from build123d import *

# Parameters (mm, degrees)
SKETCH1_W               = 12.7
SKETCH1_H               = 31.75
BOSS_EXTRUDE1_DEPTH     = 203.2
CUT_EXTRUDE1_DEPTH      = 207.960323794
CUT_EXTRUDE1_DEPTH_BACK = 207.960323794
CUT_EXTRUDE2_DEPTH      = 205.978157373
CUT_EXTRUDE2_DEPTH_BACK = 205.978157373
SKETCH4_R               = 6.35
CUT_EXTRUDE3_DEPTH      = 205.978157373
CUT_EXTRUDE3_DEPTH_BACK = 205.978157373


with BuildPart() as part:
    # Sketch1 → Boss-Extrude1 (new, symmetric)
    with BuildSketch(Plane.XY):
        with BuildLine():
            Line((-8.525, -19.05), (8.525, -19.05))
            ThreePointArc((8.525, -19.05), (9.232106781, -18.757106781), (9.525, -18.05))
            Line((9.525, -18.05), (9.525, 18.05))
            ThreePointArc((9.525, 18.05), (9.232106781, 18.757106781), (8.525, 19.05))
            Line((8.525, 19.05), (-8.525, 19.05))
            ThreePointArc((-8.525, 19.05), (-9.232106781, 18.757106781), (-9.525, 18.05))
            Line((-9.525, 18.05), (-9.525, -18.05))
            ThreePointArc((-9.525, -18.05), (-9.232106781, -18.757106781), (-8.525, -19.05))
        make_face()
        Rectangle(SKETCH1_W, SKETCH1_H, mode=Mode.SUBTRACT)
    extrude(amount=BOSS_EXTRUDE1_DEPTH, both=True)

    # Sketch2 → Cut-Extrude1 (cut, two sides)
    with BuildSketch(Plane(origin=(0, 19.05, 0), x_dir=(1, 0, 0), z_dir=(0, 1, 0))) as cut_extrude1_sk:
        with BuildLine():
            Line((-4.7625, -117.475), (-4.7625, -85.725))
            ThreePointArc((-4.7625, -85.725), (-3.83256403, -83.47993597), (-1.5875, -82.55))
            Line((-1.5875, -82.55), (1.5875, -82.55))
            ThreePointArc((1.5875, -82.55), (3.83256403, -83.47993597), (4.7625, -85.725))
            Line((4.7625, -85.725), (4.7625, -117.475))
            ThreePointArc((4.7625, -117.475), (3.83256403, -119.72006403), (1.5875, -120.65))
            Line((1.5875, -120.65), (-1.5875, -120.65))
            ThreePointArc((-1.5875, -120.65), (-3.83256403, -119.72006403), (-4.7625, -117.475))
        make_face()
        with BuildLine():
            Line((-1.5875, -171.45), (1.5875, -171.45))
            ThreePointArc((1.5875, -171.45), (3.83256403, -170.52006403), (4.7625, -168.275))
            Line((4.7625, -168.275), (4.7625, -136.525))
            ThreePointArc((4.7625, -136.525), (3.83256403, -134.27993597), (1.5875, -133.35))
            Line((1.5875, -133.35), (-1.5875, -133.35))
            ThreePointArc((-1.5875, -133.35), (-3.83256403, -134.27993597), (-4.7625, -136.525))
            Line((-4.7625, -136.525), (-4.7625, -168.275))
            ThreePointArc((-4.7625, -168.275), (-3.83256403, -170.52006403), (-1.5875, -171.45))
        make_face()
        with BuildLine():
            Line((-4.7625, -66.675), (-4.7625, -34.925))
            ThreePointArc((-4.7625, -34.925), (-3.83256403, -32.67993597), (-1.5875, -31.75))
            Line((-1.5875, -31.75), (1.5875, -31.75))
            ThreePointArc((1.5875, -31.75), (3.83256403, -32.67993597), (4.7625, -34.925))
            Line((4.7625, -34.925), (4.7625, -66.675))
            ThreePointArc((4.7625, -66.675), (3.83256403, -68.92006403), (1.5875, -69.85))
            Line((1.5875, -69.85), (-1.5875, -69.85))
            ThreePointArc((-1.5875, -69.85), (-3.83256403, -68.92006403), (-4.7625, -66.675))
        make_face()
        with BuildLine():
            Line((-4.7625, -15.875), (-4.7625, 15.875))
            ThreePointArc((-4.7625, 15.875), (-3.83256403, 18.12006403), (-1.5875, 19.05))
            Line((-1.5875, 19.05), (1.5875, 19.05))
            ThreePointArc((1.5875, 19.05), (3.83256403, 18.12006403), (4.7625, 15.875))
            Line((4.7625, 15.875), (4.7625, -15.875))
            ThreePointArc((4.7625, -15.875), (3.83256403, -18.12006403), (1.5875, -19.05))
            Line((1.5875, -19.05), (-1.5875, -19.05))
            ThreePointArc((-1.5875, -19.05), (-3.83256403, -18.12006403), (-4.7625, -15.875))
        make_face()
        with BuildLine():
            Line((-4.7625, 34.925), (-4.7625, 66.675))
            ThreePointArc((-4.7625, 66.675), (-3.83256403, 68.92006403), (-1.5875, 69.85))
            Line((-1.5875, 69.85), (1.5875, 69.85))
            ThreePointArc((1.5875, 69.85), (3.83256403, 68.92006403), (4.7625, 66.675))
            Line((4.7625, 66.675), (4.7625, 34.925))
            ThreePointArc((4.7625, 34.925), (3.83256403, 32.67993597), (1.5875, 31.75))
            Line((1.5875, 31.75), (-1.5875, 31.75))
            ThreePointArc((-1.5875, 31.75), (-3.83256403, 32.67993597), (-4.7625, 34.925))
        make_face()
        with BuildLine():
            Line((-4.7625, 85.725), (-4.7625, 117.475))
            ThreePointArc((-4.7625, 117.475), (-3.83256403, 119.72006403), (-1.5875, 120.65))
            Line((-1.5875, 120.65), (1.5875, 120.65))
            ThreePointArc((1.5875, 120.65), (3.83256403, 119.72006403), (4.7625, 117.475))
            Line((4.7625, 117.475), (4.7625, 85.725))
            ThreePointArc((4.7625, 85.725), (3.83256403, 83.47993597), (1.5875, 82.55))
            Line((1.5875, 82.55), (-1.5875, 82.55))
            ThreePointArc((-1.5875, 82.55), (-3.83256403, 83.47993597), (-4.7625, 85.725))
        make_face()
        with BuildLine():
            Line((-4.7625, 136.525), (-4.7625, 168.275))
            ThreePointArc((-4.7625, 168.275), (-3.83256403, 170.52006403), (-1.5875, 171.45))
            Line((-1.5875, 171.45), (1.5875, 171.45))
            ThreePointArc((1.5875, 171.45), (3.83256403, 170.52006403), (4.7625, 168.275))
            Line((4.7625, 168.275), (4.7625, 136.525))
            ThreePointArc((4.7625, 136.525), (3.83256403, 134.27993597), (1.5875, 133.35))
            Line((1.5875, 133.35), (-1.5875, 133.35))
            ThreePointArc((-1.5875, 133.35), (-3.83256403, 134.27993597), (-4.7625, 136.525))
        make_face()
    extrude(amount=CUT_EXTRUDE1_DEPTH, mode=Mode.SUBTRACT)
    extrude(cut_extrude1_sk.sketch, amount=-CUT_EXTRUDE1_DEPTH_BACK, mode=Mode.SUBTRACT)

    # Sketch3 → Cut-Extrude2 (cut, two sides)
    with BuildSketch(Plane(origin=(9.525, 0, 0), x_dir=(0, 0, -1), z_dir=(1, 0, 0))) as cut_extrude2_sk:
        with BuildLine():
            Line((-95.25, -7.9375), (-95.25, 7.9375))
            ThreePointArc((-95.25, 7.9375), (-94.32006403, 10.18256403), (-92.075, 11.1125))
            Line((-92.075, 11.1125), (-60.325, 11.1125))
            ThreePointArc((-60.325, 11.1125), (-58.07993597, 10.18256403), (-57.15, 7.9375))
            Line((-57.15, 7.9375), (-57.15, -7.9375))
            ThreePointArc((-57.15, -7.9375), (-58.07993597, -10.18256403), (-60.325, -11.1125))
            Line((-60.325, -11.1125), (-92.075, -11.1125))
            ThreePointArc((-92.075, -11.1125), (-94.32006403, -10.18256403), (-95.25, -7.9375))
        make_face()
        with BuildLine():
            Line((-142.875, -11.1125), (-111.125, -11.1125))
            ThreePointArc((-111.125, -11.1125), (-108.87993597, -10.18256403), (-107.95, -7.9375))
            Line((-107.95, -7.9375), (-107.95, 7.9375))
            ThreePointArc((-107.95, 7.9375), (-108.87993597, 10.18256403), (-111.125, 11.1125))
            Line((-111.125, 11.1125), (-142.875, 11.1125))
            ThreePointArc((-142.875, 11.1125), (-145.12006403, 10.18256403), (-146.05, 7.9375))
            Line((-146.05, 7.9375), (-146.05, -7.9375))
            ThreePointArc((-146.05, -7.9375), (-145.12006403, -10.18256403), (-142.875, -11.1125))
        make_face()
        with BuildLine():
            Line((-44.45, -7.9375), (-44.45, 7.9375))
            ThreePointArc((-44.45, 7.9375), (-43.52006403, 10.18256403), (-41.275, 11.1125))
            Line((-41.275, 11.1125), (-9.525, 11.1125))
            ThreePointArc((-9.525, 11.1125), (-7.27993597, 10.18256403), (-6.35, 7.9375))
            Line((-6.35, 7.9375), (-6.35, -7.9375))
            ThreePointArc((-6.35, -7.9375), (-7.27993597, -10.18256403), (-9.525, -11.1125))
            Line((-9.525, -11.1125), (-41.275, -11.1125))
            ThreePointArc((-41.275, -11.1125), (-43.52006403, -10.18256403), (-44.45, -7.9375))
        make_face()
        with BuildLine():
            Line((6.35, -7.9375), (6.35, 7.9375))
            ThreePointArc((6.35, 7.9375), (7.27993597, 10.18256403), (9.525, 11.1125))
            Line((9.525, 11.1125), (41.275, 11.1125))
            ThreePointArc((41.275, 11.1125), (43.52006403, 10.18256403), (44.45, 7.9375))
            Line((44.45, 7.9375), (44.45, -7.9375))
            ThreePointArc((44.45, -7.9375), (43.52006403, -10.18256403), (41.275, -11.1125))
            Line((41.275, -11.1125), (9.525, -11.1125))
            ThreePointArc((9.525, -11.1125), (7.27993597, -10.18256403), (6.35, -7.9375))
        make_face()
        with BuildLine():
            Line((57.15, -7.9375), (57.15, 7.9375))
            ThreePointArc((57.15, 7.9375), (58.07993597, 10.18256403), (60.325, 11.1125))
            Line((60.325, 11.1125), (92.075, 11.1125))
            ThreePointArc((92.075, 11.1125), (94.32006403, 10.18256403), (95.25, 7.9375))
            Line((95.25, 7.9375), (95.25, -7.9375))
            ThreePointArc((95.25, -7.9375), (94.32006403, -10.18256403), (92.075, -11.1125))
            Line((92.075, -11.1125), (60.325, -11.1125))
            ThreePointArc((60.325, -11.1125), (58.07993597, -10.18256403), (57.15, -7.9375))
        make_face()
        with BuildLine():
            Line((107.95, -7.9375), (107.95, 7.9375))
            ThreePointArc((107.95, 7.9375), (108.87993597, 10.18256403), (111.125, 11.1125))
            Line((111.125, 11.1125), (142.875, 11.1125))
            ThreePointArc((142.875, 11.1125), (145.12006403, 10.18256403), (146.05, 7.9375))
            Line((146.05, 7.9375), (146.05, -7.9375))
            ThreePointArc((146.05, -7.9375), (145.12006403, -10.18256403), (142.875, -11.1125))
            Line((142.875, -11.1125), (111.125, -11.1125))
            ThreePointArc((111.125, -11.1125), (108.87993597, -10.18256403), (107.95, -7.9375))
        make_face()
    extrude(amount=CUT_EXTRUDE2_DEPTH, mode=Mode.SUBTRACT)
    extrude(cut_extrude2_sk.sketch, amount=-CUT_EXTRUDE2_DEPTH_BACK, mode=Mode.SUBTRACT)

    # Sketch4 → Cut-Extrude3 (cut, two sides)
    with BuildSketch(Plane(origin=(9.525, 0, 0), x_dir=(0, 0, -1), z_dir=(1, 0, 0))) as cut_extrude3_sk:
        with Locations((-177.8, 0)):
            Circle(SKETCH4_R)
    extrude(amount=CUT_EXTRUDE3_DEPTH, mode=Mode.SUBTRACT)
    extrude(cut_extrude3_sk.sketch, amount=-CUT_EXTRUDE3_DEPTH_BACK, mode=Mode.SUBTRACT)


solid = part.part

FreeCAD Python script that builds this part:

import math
import FreeCAD as App
import Part
import Sketcher

V = App.Vector
Q = App.Units.Quantity

doc = App.newDocument("Part")
params = doc.addObject("Spreadsheet::Sheet", "Params")
for row, (alias, value) in enumerate([
    ("sketch1_width", "0.5 in"),
    ("sketch1_height", "1.25 in"),
    ("pad1_length", "16 in"),
    ("sketch2_radius", "0.125 in"),
    ("sketch2_height", "1.25 in"),
    ("sketch2_width", "0.125 in"),
    ("sketch3_radius", "0.125 in"),
    ("sketch3_height", "1.25 in"),
    ("sketch3_width", "0.625 in"),
    ("sketch4_diameter", "0.5 in"),
], start=1):
    params.set(f"A{row}", alias)
    params.set(f"B{row}", "=" + value)
    params.setAlias(f"B{row}", alias)

body = doc.addObject("PartDesign::Body", "Body")

sketch1 = body.newObject("Sketcher::SketchObject", "Sketch")
sketch1.AttachmentSupport = (doc.getObject("XY_Plane"), [""])
sketch1.MapMode = "FlatFace"
sketch1.addGeometry([
    Part.LineSegment(V(-8.525, -19.05, 0), V(8.525, -19.05, 0)),
    Part.ArcOfCircle(Part.Circle(V(8.525, -18.05, 0), V(0, 0, 1), 1), math.radians(-90), math.radians(0)),
    Part.LineSegment(V(9.525, -18.05, 0), V(9.525, 18.05, 0)),
    Part.ArcOfCircle(Part.Circle(V(8.525, 18.05, 0), V(0, 0, 1), 1), math.radians(0), math.radians(90)),
    Part.LineSegment(V(8.525, 19.05, 0), V(-8.525, 19.05, 0)),
    Part.ArcOfCircle(Part.Circle(V(-8.525, 18.05, 0), V(0, 0, 1), 1), math.radians(90), math.radians(180)),
    Part.LineSegment(V(-9.525, 18.05, 0), V(-9.525, -18.05, 0)),
    Part.ArcOfCircle(Part.Circle(V(-8.525, -18.05, 0), V(0, 0, 1), 1), math.radians(-180), math.radians(-90)),
    Part.LineSegment(V(6.35, -15.875, 0), V(-6.35, -15.875, 0)),
    Part.LineSegment(V(-6.35, -15.875, 0), V(-6.35, 15.875, 0)),
    Part.LineSegment(V(-6.35, 15.875, 0), V(6.35, 15.875, 0)),
    Part.LineSegment(V(6.35, 15.875, 0), V(6.35, -15.875, 0)),
], False)
sketch1.addConstraint([
    Sketcher.Constraint("Tangent", 0, 2, 1, 1),
    Sketcher.Constraint("Tangent", 1, 2, 2, 1),
    Sketcher.Constraint("Tangent", 2, 2, 3, 1),
    Sketcher.Constraint("Tangent", 3, 2, 4, 1),
    Sketcher.Constraint("Tangent", 4, 2, 5, 1),
    Sketcher.Constraint("Tangent", 5, 2, 6, 1),
    Sketcher.Constraint("Tangent", 6, 2, 7, 1),
    Sketcher.Constraint("Tangent", 7, 2, 0, 1),
    Sketcher.Constraint("Coincident", 8, 2, 9, 1),
    Sketcher.Constraint("Coincident", 9, 2, 10, 1),
    Sketcher.Constraint("Coincident", 10, 2, 11, 1),
    Sketcher.Constraint("Coincident", 11, 2, 8, 1),
    Sketcher.Constraint("Horizontal", 0),
    Sketcher.Constraint("Vertical", 2),
    Sketcher.Constraint("Horizontal", 4),
    Sketcher.Constraint("Vertical", 6),
    Sketcher.Constraint("Horizontal", 8),
    Sketcher.Constraint("Vertical", 9),
    Sketcher.Constraint("Horizontal", 10),
    Sketcher.Constraint("Vertical", 11),
    Sketcher.Constraint("Equal", 1, 3),
    Sketcher.Constraint("Equal", 3, 5),
    Sketcher.Constraint("Equal", 5, 7),
    Sketcher.Constraint("Symmetric", 1, 3, 5, 3, -1, 1),
    Sketcher.Constraint("Symmetric", 8, 2, 10, 2, -1, 1),
    Sketcher.Constraint("DistanceX", 8, 2, 8, 1, Q("0.5 in")),
    Sketcher.Constraint("DistanceY", 9, 1, 9, 2, Q("1.25 in")),
    Sketcher.Constraint("DistanceY", 0, 2, -1, 1, Q("0.75 in")),
    Sketcher.Constraint("Radius", 1, Q("1 mm")),
    Sketcher.Constraint("DistanceX", 5, 2, 2, 2, Q("0.75 in")),
])
sketch1.setExpression("Constraints[25]", "Params.sketch1_width")
sketch1.setExpression("Constraints[26]", "Params.sketch1_height")
pad1 = body.newObject("PartDesign::Pad", "Pad")
pad1.Profile = sketch1
pad1.setExpression("Length", "Params.pad1_length")
pad1.Midplane = True

sketch2 = body.newObject("Sketcher::SketchObject", "Sketch001")
sketch2.AttachmentSupport = (doc.getObject("XZ_Plane"), [""])
sketch2.MapMode = "FlatFace"
sketch2.AttachmentOffset = App.Placement(V(0, 0, -0.75 * 25.4), App.Rotation())
sketch2.addGeometry([
    Part.LineSegment(V(-4.7625, 85.725, 0), V(-4.7625, 117.475, 0)),
    Part.ArcOfCircle(Part.Circle(V(-1.5875, 117.475, 0), V(0, 0, 1), 3.175), math.radians(90), math.radians(180)),
    Part.LineSegment(V(-1.5875, 120.65, 0), V(1.5875, 120.65, 0)),
    Part.ArcOfCircle(Part.Circle(V(1.5875, 117.475, 0), V(0, 0, 1), 3.175), math.radians(0), math.radians(90)),
    Part.LineSegment(V(4.7625, 117.475, 0), V(4.7625, 85.725, 0)),
    Part.ArcOfCircle(Part.Circle(V(1.5875, 85.725, 0), V(0, 0, 1), 3.175), math.radians(-90), math.radians(0)),
    Part.LineSegment(V(1.5875, 82.55, 0), V(-1.5875, 82.55, 0)),
    Part.ArcOfCircle(Part.Circle(V(-1.5875, 85.725, 0), V(0, 0, 1), 3.175), math.radians(-180), math.radians(-90)),
    Part.LineSegment(V(-1.5875, 171.45, 0), V(1.5875, 171.45, 0)),
    Part.ArcOfCircle(Part.Circle(V(1.5875, 168.275, 0), V(0, 0, 1), 3.175), math.radians(0), math.radians(90)),
    Part.LineSegment(V(4.7625, 168.275, 0), V(4.7625, 136.525, 0)),
    Part.ArcOfCircle(Part.Circle(V(1.5875, 136.525, 0), V(0, 0, 1), 3.175), math.radians(-90), math.radians(0)),
    Part.LineSegment(V(1.5875, 133.35, 0), V(-1.5875, 133.35, 0)),
    Part.ArcOfCircle(Part.Circle(V(-1.5875, 136.525, 0), V(0, 0, 1), 3.175), math.radians(-180), math.radians(-90)),
    Part.LineSegment(V(-4.7625, 136.525, 0), V(-4.7625, 168.275, 0)),
    Part.ArcOfCircle(Part.Circle(V(-1.5875, 168.275, 0), V(0, 0, 1), 3.175), math.radians(90), math.radians(180)),
    Part.LineSegment(V(-4.7625, 34.925, 0), V(-4.7625, 66.675, 0)),
    Part.ArcOfCircle(Part.Circle(V(-1.5875, 66.675, 0), V(0, 0, 1), 3.175), math.radians(90), math.radians(180)),
    Part.LineSegment(V(-1.5875, 69.85, 0), V(1.5875, 69.85, 0)),
    Part.ArcOfCircle(Part.Circle(V(1.5875, 66.675, 0), V(0, 0, 1), 3.175), math.radians(0), math.radians(90)),
    Part.LineSegment(V(4.7625, 66.675, 0), V(4.7625, 34.925, 0)),
    Part.ArcOfCircle(Part.Circle(V(1.5875, 34.925, 0), V(0, 0, 1), 3.175), math.radians(-90), math.radians(0)),
    Part.LineSegment(V(1.5875, 31.75, 0), V(-1.5875, 31.75, 0)),
    Part.ArcOfCircle(Part.Circle(V(-1.5875, 34.925, 0), V(0, 0, 1), 3.175), math.radians(-180), math.radians(-90)),
    Part.LineSegment(V(-4.7625, -15.875, 0), V(-4.7625, 15.875, 0)),
    Part.ArcOfCircle(Part.Circle(V(-1.5875, 15.875, 0), V(0, 0, 1), 3.175), math.radians(90), math.radians(180)),
    Part.LineSegment(V(-1.5875, 19.05, 0), V(1.5875, 19.05, 0)),
    Part.ArcOfCircle(Part.Circle(V(1.5875, 15.875, 0), V(0, 0, 1), 3.175), math.radians(0), math.radians(90)),
    Part.LineSegment(V(4.7625, 15.875, 0), V(4.7625, -15.875, 0)),
    Part.ArcOfCircle(Part.Circle(V(1.5875, -15.875, 0), V(0, 0, 1), 3.175), math.radians(-90), math.radians(0)),
    Part.LineSegment(V(1.5875, -19.05, 0), V(-1.5875, -19.05, 0)),
    Part.ArcOfCircle(Part.Circle(V(-1.5875, -15.875, 0), V(0, 0, 1), 3.175), math.radians(-180), math.radians(-90)),
    Part.LineSegment(V(-4.7625, -66.675, 0), V(-4.7625, -34.925, 0)),
    Part.ArcOfCircle(Part.Circle(V(-1.5875, -34.925, 0), V(0, 0, 1), 3.175), math.radians(90), math.radians(180)),
    Part.LineSegment(V(-1.5875, -31.75, 0), V(1.5875, -31.75, 0)),
    Part.ArcOfCircle(Part.Circle(V(1.5875, -34.925, 0), V(0, 0, 1), 3.175), math.radians(0), math.radians(90)),
    Part.LineSegment(V(4.7625, -34.925, 0), V(4.7625, -66.675, 0)),
    Part.ArcOfCircle(Part.Circle(V(1.5875, -66.675, 0), V(0, 0, 1), 3.175), math.radians(-90), math.radians(0)),
    Part.LineSegment(V(1.5875, -69.85, 0), V(-1.5875, -69.85, 0)),
    Part.ArcOfCircle(Part.Circle(V(-1.5875, -66.675, 0), V(0, 0, 1), 3.175), math.radians(-180), math.radians(-90)),
    Part.LineSegment(V(-4.7625, -117.475, 0), V(-4.7625, -85.725, 0)),
    Part.ArcOfCircle(Part.Circle(V(-1.5875, -85.725, 0), V(0, 0, 1), 3.175), math.radians(90), math.radians(180)),
    Part.LineSegment(V(-1.5875, -82.55, 0), V(1.5875, -82.55, 0)),
    Part.ArcOfCircle(Part.Circle(V(1.5875, -85.725, 0), V(0, 0, 1), 3.175), math.radians(0), math.radians(90)),
    Part.LineSegment(V(4.7625, -85.725, 0), V(4.7625, -117.475, 0)),
    Part.ArcOfCircle(Part.Circle(V(1.5875, -117.475, 0), V(0, 0, 1), 3.175), math.radians(-90), math.radians(0)),
    Part.LineSegment(V(1.5875, -120.65, 0), V(-1.5875, -120.65, 0)),
    Part.ArcOfCircle(Part.Circle(V(-1.5875, -117.475, 0), V(0, 0, 1), 3.175), math.radians(-180), math.radians(-90)),
    Part.LineSegment(V(-4.7625, -168.275, 0), V(-4.7625, -136.525, 0)),
    Part.ArcOfCircle(Part.Circle(V(-1.5875, -136.525, 0), V(0, 0, 1), 3.175), math.radians(90), math.radians(180)),
    Part.LineSegment(V(-1.5875, -133.35, 0), V(1.5875, -133.35, 0)),
    Part.ArcOfCircle(Part.Circle(V(1.5875, -136.525, 0), V(0, 0, 1), 3.175), math.radians(0), math.radians(90)),
    Part.LineSegment(V(4.7625, -136.525, 0), V(4.7625, -168.275, 0)),
    Part.ArcOfCircle(Part.Circle(V(1.5875, -168.275, 0), V(0, 0, 1), 3.175), math.radians(-90), math.radians(0)),
    Part.LineSegment(V(1.5875, -171.45, 0), V(-1.5875, -171.45, 0)),
    Part.ArcOfCircle(Part.Circle(V(-1.5875, -168.275, 0), V(0, 0, 1), 3.175), math.radians(-180), math.radians(-90)),
], False)
sketch2.addConstraint([
    Sketcher.Constraint("Tangent", 0, 2, 1, 2),
    Sketcher.Constraint("Tangent", 1, 1, 2, 1),
    Sketcher.Constraint("Tangent", 2, 2, 3, 2),
    Sketcher.Constraint("Tangent", 3, 1, 4, 1),
    Sketcher.Constraint("Tangent", 4, 2, 5, 2),
    Sketcher.Constraint("Tangent", 5, 1, 6, 1),
    Sketcher.Constraint("Tangent", 6, 2, 7, 2),
    Sketcher.Constraint("Tangent", 7, 1, 0, 1),
    Sketcher.Constraint("Tangent", 8, 2, 9, 2),
    Sketcher.Constraint("Tangent", 9, 1, 10, 1),
    Sketcher.Constraint("Tangent", 10, 2, 11, 2),
    Sketcher.Constraint("Tangent", 11, 1, 12, 1),
    Sketcher.Constraint("Tangent", 12, 2, 13, 2),
    Sketcher.Constraint("Tangent", 13, 1, 14, 1),
    Sketcher.Constraint("Tangent", 14, 2, 15, 2),
    Sketcher.Constraint("Tangent", 15, 1, 8, 1),
    Sketcher.Constraint("Tangent", 16, 2, 17, 2),
    Sketcher.Constraint("Tangent", 17, 1, 18, 1),
    Sketcher.Constraint("Tangent", 18, 2, 19, 2),
    Sketcher.Constraint("Tangent", 19, 1, 20, 1),
    Sketcher.Constraint("Tangent", 20, 2, 21, 2),
    Sketcher.Constraint("Tangent", 21, 1, 22, 1),
    Sketcher.Constraint("Tangent", 22, 2, 23, 2),
    Sketcher.Constraint("Tangent", 23, 1, 16, 1),
    Sketcher.Constraint("Tangent", 24, 2, 25, 2),
    Sketcher.Constraint("Tangent", 25, 1, 26, 1),
    Sketcher.Constraint("Tangent", 26, 2, 27, 2),
    Sketcher.Constraint("Tangent", 27, 1, 28, 1),
    Sketcher.Constraint("Tangent", 28, 2, 29, 2),
    Sketcher.Constraint("Tangent", 29, 1, 30, 1),
    Sketcher.Constraint("Tangent", 30, 2, 31, 2),
    Sketcher.Constraint("Tangent", 31, 1, 24, 1),
    Sketcher.Constraint("Tangent", 32, 2, 33, 2),
    Sketcher.Constraint("Tangent", 33, 1, 34, 1),
    Sketcher.Constraint("Tangent", 34, 2, 35, 2),
    Sketcher.Constraint("Tangent", 35, 1, 36, 1),
    Sketcher.Constraint("Tangent", 36, 2, 37, 2),
    Sketcher.Constraint("Tangent", 37, 1, 38, 1),
    Sketcher.Constraint("Tangent", 38, 2, 39, 2),
    Sketcher.Constraint("Tangent", 39, 1, 32, 1),
    Sketcher.Constraint("Tangent", 40, 2, 41, 2),
    Sketcher.Constraint("Tangent", 41, 1, 42, 1),
    Sketcher.Constraint("Tangent", 42, 2, 43, 2),
    Sketcher.Constraint("Tangent", 43, 1, 44, 1),
    Sketcher.Constraint("Tangent", 44, 2, 45, 2),
    Sketcher.Constraint("Tangent", 45, 1, 46, 1),
    Sketcher.Constraint("Tangent", 46, 2, 47, 2),
    Sketcher.Constraint("Tangent", 47, 1, 40, 1),
    Sketcher.Constraint("Tangent", 48, 2, 49, 2),
    Sketcher.Constraint("Tangent", 49, 1, 50, 1),
    Sketcher.Constraint("Tangent", 50, 2, 51, 2),
    Sketcher.Constraint("Tangent", 51, 1, 52, 1),
    Sketcher.Constraint("Tangent", 52, 2, 53, 2),
    Sketcher.Constraint("Tangent", 53, 1, 54, 1),
    Sketcher.Constraint("Tangent", 54, 2, 55, 2),
    Sketcher.Constraint("Tangent", 55, 1, 48, 1),
    Sketcher.Constraint("Vertical", 0),
    Sketcher.Constraint("Horizontal", 2),
    Sketcher.Constraint("Vertical", 4),
    Sketcher.Constraint("Horizontal", 6),
    Sketcher.Constraint("Horizontal", 8),
    Sketcher.Constraint("Vertical", 10),
    Sketcher.Constraint("Horizontal", 12),
    Sketcher.Constraint("Vertical", 14),
    Sketcher.Constraint("Vertical", 16),
    Sketcher.Constraint("Horizontal", 18),
    Sketcher.Constraint("Vertical", 20),
    Sketcher.Constraint("Horizontal", 22),
    Sketcher.Constraint("Vertical", 24),
    Sketcher.Constraint("Horizontal", 26),
    Sketcher.Constraint("Vertical", 28),
    Sketcher.Constraint("Horizontal", 30),
    Sketcher.Constraint("Vertical", 32),
    Sketcher.Constraint("Horizontal", 34),
    Sketcher.Constraint("Vertical", 36),
    Sketcher.Constraint("Horizontal", 38),
    Sketcher.Constraint("Vertical", 40),
    Sketcher.Constraint("Horizontal", 42),
    Sketcher.Constraint("Vertical", 44),
    Sketcher.Constraint("Horizontal", 46),
    Sketcher.Constraint("Vertical", 48),
    Sketcher.Constraint("Horizontal", 50),
    Sketcher.Constraint("Vertical", 52),
    Sketcher.Constraint("Horizontal", 54),
    Sketcher.Constraint("Equal", 1, 3),
    Sketcher.Constraint("Equal", 3, 5),
    Sketcher.Constraint("Equal", 5, 7),
    Sketcher.Constraint("Equal", 7, 9),
    Sketcher.Constraint("Equal", 9, 11),
    Sketcher.Constraint("Equal", 11, 13),
    Sketcher.Constraint("Equal", 13, 15),
    Sketcher.Constraint("Equal", 15, 17),
    Sketcher.Constraint("Equal", 17, 19),
    Sketcher.Constraint("Equal", 19, 21),
    Sketcher.Constraint("Equal", 21, 23),
    Sketcher.Constraint("Equal", 23, 25),
    Sketcher.Constraint("Equal", 25, 27),
    Sketcher.Constraint("Equal", 27, 29),
    Sketcher.Constraint("Equal", 29, 31),
    Sketcher.Constraint("Equal", 31, 33),
    Sketcher.Constraint("Equal", 33, 35),
    Sketcher.Constraint("Equal", 35, 37),
    Sketcher.Constraint("Equal", 37, 39),
    Sketcher.Constraint("Equal", 39, 41),
    Sketcher.Constraint("Equal", 41, 43),
    Sketcher.Constraint("Equal", 43, 45),
    Sketcher.Constraint("Equal", 45, 47),
    Sketcher.Constraint("Equal", 47, 49),
    Sketcher.Constraint("Equal", 49, 51),
    Sketcher.Constraint("Equal", 51, 53),
    Sketcher.Constraint("Equal", 53, 55),
    Sketcher.Constraint("Symmetric", 25, 3, 29, 3, -1, 1),
    Sketcher.Constraint("Symmetric", 21, 3, 33, 3, -1, 1),
    Sketcher.Constraint("Symmetric", 17, 3, 37, 3, -1, 1),
    Sketcher.Constraint("Symmetric", 5, 3, 41, 3, -1, 1),
    Sketcher.Constraint("Symmetric", 1, 3, 45, 3, -1, 1),
    Sketcher.Constraint("Symmetric", 11, 3, 49, 3, -1, 1),
    Sketcher.Constraint("Symmetric", 15, 3, 53, 3, -1, 1),
    Sketcher.Constraint("Vertical", 5, 3, 9, 3),
    Sketcher.Constraint("Vertical", 7, 3, 13, 3),
    Sketcher.Constraint("Vertical", 15, 3, 17, 3),
    Sketcher.Constraint("Vertical", 11, 3, 19, 3),
    Sketcher.Constraint("Vertical", 23, 3, 25, 3),
    Sketcher.Constraint("Vertical", 21, 3, 27, 3),
    Sketcher.Constraint("Equal", 4, 10),
    Sketcher.Constraint("Equal", 14, 16),
    Sketcher.Constraint("Equal", 20, 24),
    Sketcher.Constraint("Radius", 1, Q("0.125 in")),
    Sketcher.Constraint("DistanceY", 0, 1, 0, 2, Q("1.25 in")),
    Sketcher.Constraint("DistanceX", 2, 1, 2, 2, Q("0.125 in")),
    Sketcher.Constraint("DistanceY", -1, 1, 1, 1, Q("4.75 in")),
    Sketcher.Constraint("DistanceY", -1, 1, 8, 2, Q("6.75 in")),
    Sketcher.Constraint("DistanceY", -1, 1, 17, 1, Q("2.75 in")),
])
sketch2.setExpression("Constraints[127]", "Params.sketch2_radius")
sketch2.setExpression("Constraints[128]", "Params.sketch2_height")
sketch2.setExpression("Constraints[129]", "Params.sketch2_width")
pocket1 = body.newObject("PartDesign::Pocket", "Pocket")
pocket1.Profile = sketch2
pocket1.Type = "ThroughAll"
pocket1.Midplane = True

sketch3 = body.newObject("Sketcher::SketchObject", "Sketch002")
sketch3.AttachmentSupport = (doc.getObject("YZ_Plane"), [""])
sketch3.MapMode = "FlatFace"
sketch3.AttachmentOffset = App.Placement(V(0, 0, 0.375 * 25.4), App.Rotation())
sketch3.addGeometry([
    Part.LineSegment(V(7.9375, 95.25, 0), V(-7.9375, 95.25, 0)),
    Part.ArcOfCircle(Part.Circle(V(-7.9375, 92.075, 0), V(0, 0, 1), 3.175), math.radians(90), math.radians(180)),
    Part.LineSegment(V(-11.1125, 92.075, 0), V(-11.1125, 60.325, 0)),
    Part.ArcOfCircle(Part.Circle(V(-7.9375, 60.325, 0), V(0, 0, 1), 3.175), math.radians(-180), math.radians(-90)),
    Part.LineSegment(V(-7.9375, 57.15, 0), V(7.9375, 57.15, 0)),
    Part.ArcOfCircle(Part.Circle(V(7.9375, 60.325, 0), V(0, 0, 1), 3.175), math.radians(-90), math.radians(0)),
    Part.LineSegment(V(11.1125, 60.325, 0), V(11.1125, 92.075, 0)),
    Part.ArcOfCircle(Part.Circle(V(7.9375, 92.075, 0), V(0, 0, 1), 3.175), math.radians(0), math.radians(90)),
    Part.LineSegment(V(-11.1125, 142.875, 0), V(-11.1125, 111.125, 0)),
    Part.ArcOfCircle(Part.Circle(V(-7.9375, 111.125, 0), V(0, 0, 1), 3.175), math.radians(-180), math.radians(-90)),
    Part.LineSegment(V(-7.9375, 107.95, 0), V(7.9375, 107.95, 0)),
    Part.ArcOfCircle(Part.Circle(V(7.9375, 111.125, 0), V(0, 0, 1), 3.175), math.radians(-90), math.radians(0)),
    Part.LineSegment(V(11.1125, 111.125, 0), V(11.1125, 142.875, 0)),
    Part.ArcOfCircle(Part.Circle(V(7.9375, 142.875, 0), V(0, 0, 1), 3.175), math.radians(0), math.radians(90)),
    Part.LineSegment(V(7.9375, 146.05, 0), V(-7.9375, 146.05, 0)),
    Part.ArcOfCircle(Part.Circle(V(-7.9375, 142.875, 0), V(0, 0, 1), 3.175), math.radians(90), math.radians(180)),
    Part.LineSegment(V(7.9375, 44.45, 0), V(-7.9375, 44.45, 0)),
    Part.ArcOfCircle(Part.Circle(V(-7.9375, 41.275, 0), V(0, 0, 1), 3.175), math.radians(90), math.radians(180)),
    Part.LineSegment(V(-11.1125, 41.275, 0), V(-11.1125, 9.525, 0)),
    Part.ArcOfCircle(Part.Circle(V(-7.9375, 9.525, 0), V(0, 0, 1), 3.175), math.radians(-180), math.radians(-90)),
    Part.LineSegment(V(-7.9375, 6.35, 0), V(7.9375, 6.35, 0)),
    Part.ArcOfCircle(Part.Circle(V(7.9375, 9.525, 0), V(0, 0, 1), 3.175), math.radians(-90), math.radians(0)),
    Part.LineSegment(V(11.1125, 9.525, 0), V(11.1125, 41.275, 0)),
    Part.ArcOfCircle(Part.Circle(V(7.9375, 41.275, 0), V(0, 0, 1), 3.175), math.radians(0), math.radians(90)),
    Part.LineSegment(V(7.9375, -6.35, 0), V(-7.9375, -6.35, 0)),
    Part.ArcOfCircle(Part.Circle(V(-7.9375, -9.525, 0), V(0, 0, 1), 3.175), math.radians(90), math.radians(180)),
    Part.LineSegment(V(-11.1125, -9.525, 0), V(-11.1125, -41.275, 0)),
    Part.ArcOfCircle(Part.Circle(V(-7.9375, -41.275, 0), V(0, 0, 1), 3.175), math.radians(-180), math.radians(-90)),
    Part.LineSegment(V(-7.9375, -44.45, 0), V(7.9375, -44.45, 0)),
    Part.ArcOfCircle(Part.Circle(V(7.9375, -41.275, 0), V(0, 0, 1), 3.175), math.radians(-90), math.radians(0)),
    Part.LineSegment(V(11.1125, -41.275, 0), V(11.1125, -9.525, 0)),
    Part.ArcOfCircle(Part.Circle(V(7.9375, -9.525, 0), V(0, 0, 1), 3.175), math.radians(0), math.radians(90)),
    Part.LineSegment(V(7.9375, -57.15, 0), V(-7.9375, -57.15, 0)),
    Part.ArcOfCircle(Part.Circle(V(-7.9375, -60.325, 0), V(0, 0, 1), 3.175), math.radians(90), math.radians(180)),
    Part.LineSegment(V(-11.1125, -60.325, 0), V(-11.1125, -92.075, 0)),
    Part.ArcOfCircle(Part.Circle(V(-7.9375, -92.075, 0), V(0, 0, 1), 3.175), math.radians(-180), math.radians(-90)),
    Part.LineSegment(V(-7.9375, -95.25, 0), V(7.9375, -95.25, 0)),
    Part.ArcOfCircle(Part.Circle(V(7.9375, -92.075, 0), V(0, 0, 1), 3.175), math.radians(-90), math.radians(0)),
    Part.LineSegment(V(11.1125, -92.075, 0), V(11.1125, -60.325, 0)),
    Part.ArcOfCircle(Part.Circle(V(7.9375, -60.325, 0), V(0, 0, 1), 3.175), math.radians(0), math.radians(90)),
    Part.LineSegment(V(7.9375, -107.95, 0), V(-7.9375, -107.95, 0)),
    Part.ArcOfCircle(Part.Circle(V(-7.9375, -111.125, 0), V(0, 0, 1), 3.175), math.radians(90), math.radians(180)),
    Part.LineSegment(V(-11.1125, -111.125, 0), V(-11.1125, -142.875, 0)),
    Part.ArcOfCircle(Part.Circle(V(-7.9375, -142.875, 0), V(0, 0, 1), 3.175), math.radians(-180), math.radians(-90)),
    Part.LineSegment(V(-7.9375, -146.05, 0), V(7.9375, -146.05, 0)),
    Part.ArcOfCircle(Part.Circle(V(7.9375, -142.875, 0), V(0, 0, 1), 3.175), math.radians(-90), math.radians(0)),
    Part.LineSegment(V(11.1125, -142.875, 0), V(11.1125, -111.125, 0)),
    Part.ArcOfCircle(Part.Circle(V(7.9375, -111.125, 0), V(0, 0, 1), 3.175), math.radians(0), math.radians(90)),
], False)
sketch3.addConstraint([
    Sketcher.Constraint("Tangent", 0, 2, 1, 1),
    Sketcher.Constraint("Tangent", 1, 2, 2, 1),
    Sketcher.Constraint("Tangent", 2, 2, 3, 1),
    Sketcher.Constraint("Tangent", 3, 2, 4, 1),
    Sketcher.Constraint("Tangent", 4, 2, 5, 1),
    Sketcher.Constraint("Tangent", 5, 2, 6, 1),
    Sketcher.Constraint("Tangent", 6, 2, 7, 1),
    Sketcher.Constraint("Tangent", 7, 2, 0, 1),
    Sketcher.Constraint("Tangent", 8, 2, 9, 1),
    Sketcher.Constraint("Tangent", 9, 2, 10, 1),
    Sketcher.Constraint("Tangent", 10, 2, 11, 1),
    Sketcher.Constraint("Tangent", 11, 2, 12, 1),
    Sketcher.Constraint("Tangent", 12, 2, 13, 1),
    Sketcher.Constraint("Tangent", 13, 2, 14, 1),
    Sketcher.Constraint("Tangent", 14, 2, 15, 1),
    Sketcher.Constraint("Tangent", 15, 2, 8, 1),
    Sketcher.Constraint("Tangent", 16, 2, 17, 1),
    Sketcher.Constraint("Tangent", 17, 2, 18, 1),
    Sketcher.Constraint("Tangent", 18, 2, 19, 1),
    Sketcher.Constraint("Tangent", 19, 2, 20, 1),
    Sketcher.Constraint("Tangent", 20, 2, 21, 1),
    Sketcher.Constraint("Tangent", 21, 2, 22, 1),
    Sketcher.Constraint("Tangent", 22, 2, 23, 1),
    Sketcher.Constraint("Tangent", 23, 2, 16, 1),
    Sketcher.Constraint("Tangent", 24, 2, 25, 1),
    Sketcher.Constraint("Tangent", 25, 2, 26, 1),
    Sketcher.Constraint("Tangent", 26, 2, 27, 1),
    Sketcher.Constraint("Tangent", 27, 2, 28, 1),
    Sketcher.Constraint("Tangent", 28, 2, 29, 1),
    Sketcher.Constraint("Tangent", 29, 2, 30, 1),
    Sketcher.Constraint("Tangent", 30, 2, 31, 1),
    Sketcher.Constraint("Tangent", 31, 2, 24, 1),
    Sketcher.Constraint("Tangent", 32, 2, 33, 1),
    Sketcher.Constraint("Tangent", 33, 2, 34, 1),
    Sketcher.Constraint("Tangent", 34, 2, 35, 1),
    Sketcher.Constraint("Tangent", 35, 2, 36, 1),
    Sketcher.Constraint("Tangent", 36, 2, 37, 1),
    Sketcher.Constraint("Tangent", 37, 2, 38, 1),
    Sketcher.Constraint("Tangent", 38, 2, 39, 1),
    Sketcher.Constraint("Tangent", 39, 2, 32, 1),
    Sketcher.Constraint("Tangent", 40, 2, 41, 1),
    Sketcher.Constraint("Tangent", 41, 2, 42, 1),
    Sketcher.Constraint("Tangent", 42, 2, 43, 1),
    Sketcher.Constraint("Tangent", 43, 2, 44, 1),
    Sketcher.Constraint("Tangent", 44, 2, 45, 1),
    Sketcher.Constraint("Tangent", 45, 2, 46, 1),
    Sketcher.Constraint("Tangent", 46, 2, 47, 1),
    Sketcher.Constraint("Tangent", 47, 2, 40, 1),
    Sketcher.Constraint("Horizontal", 0),
    Sketcher.Constraint("Vertical", 2),
    Sketcher.Constraint("Horizontal", 4),
    Sketcher.Constraint("Vertical", 6),
    Sketcher.Constraint("Vertical", 8),
    Sketcher.Constraint("Horizontal", 10),
    Sketcher.Constraint("Vertical", 12),
    Sketcher.Constraint("Horizontal", 14),
    Sketcher.Constraint("Horizontal", 16),
    Sketcher.Constraint("Vertical", 18),
    Sketcher.Constraint("Horizontal", 20),
    Sketcher.Constraint("Vertical", 22),
    Sketcher.Constraint("Horizontal", 24),
    Sketcher.Constraint("Vertical", 26),
    Sketcher.Constraint("Horizontal", 28),
    Sketcher.Constraint("Vertical", 30),
    Sketcher.Constraint("Horizontal", 32),
    Sketcher.Constraint("Vertical", 34),
    Sketcher.Constraint("Horizontal", 36),
    Sketcher.Constraint("Vertical", 38),
    Sketcher.Constraint("Horizontal", 40),
    Sketcher.Constraint("Vertical", 42),
    Sketcher.Constraint("Horizontal", 44),
    Sketcher.Constraint("Vertical", 46),
    Sketcher.Constraint("Equal", 1, 3),
    Sketcher.Constraint("Equal", 3, 5),
    Sketcher.Constraint("Equal", 5, 7),
    Sketcher.Constraint("Equal", 7, 9),
    Sketcher.Constraint("Equal", 9, 11),
    Sketcher.Constraint("Equal", 11, 13),
    Sketcher.Constraint("Equal", 13, 15),
    Sketcher.Constraint("Equal", 15, 17),
    Sketcher.Constraint("Equal", 17, 19),
    Sketcher.Constraint("Equal", 19, 21),
    Sketcher.Constraint("Equal", 21, 23),
    Sketcher.Constraint("Equal", 23, 25),
    Sketcher.Constraint("Equal", 25, 27),
    Sketcher.Constraint("Equal", 27, 29),
    Sketcher.Constraint("Equal", 29, 31),
    Sketcher.Constraint("Equal", 31, 33),
    Sketcher.Constraint("Equal", 33, 35),
    Sketcher.Constraint("Equal", 35, 37),
    Sketcher.Constraint("Equal", 37, 39),
    Sketcher.Constraint("Equal", 39, 41),
    Sketcher.Constraint("Equal", 41, 43),
    Sketcher.Constraint("Equal", 43, 45),
    Sketcher.Constraint("Equal", 45, 47),
    Sketcher.Constraint("Symmetric", 21, 3, 25, 3, -1, 1),
    Sketcher.Constraint("Symmetric", 17, 3, 29, 3, -1, 1),
    Sketcher.Constraint("Symmetric", 5, 3, 33, 3, -1, 1),
    Sketcher.Constraint("Symmetric", 1, 3, 37, 3, -1, 1),
    Sketcher.Constraint("Symmetric", 11, 3, 41, 3, -1, 1),
    Sketcher.Constraint("Symmetric", 15, 3, 45, 3, -1, 1),
    Sketcher.Constraint("Vertical", 3, 3, 9, 3),
    Sketcher.Constraint("Vertical", 7, 3, 11, 3),
    Sketcher.Constraint("Vertical", 15, 3, 17, 3),
    Sketcher.Constraint("Vertical", 13, 3, 21, 3),
    Sketcher.Constraint("Vertical", 19, 3, 25, 3),
    Sketcher.Constraint("Equal", 6, 8),
    Sketcher.Constraint("Equal", 12, 18),
    Sketcher.Constraint("Radius", 1, Q("0.125 in")),
    Sketcher.Constraint("DistanceY", 2, 2, 2, 1, Q("1.25 in")),
    Sketcher.Constraint("DistanceX", 0, 2, 0, 1, Q("0.625 in")),
    Sketcher.Constraint("DistanceY", -1, 1, 0, 2, Q("3.75 in")),
    Sketcher.Constraint("DistanceY", -1, 1, 9, 2, Q("4.25 in")),
    Sketcher.Constraint("DistanceY", -1, 1, 16, 2, Q("1.75 in")),
])
sketch3.setExpression("Constraints[108]", "Params.sketch3_radius")
sketch3.setExpression("Constraints[109]", "Params.sketch3_height")
sketch3.setExpression("Constraints[110]", "Params.sketch3_width")
pocket2 = body.newObject("PartDesign::Pocket", "Pocket001")
pocket2.Profile = sketch3
pocket2.Type = "ThroughAll"
pocket2.Midplane = True

sketch4 = body.newObject("Sketcher::SketchObject", "Sketch003")
sketch4.AttachmentSupport = (doc.getObject("YZ_Plane"), [""])
sketch4.MapMode = "FlatFace"
sketch4.AttachmentOffset = App.Placement(V(0, 0, 0.375 * 25.4), App.Rotation())
sketch4.addGeometry(Part.Circle(V(0, 177.8, 0), V(0, 0, 1), 6.35), False)
sketch4.addConstraint([
    Sketcher.Constraint("PointOnObject", 0, 3, -2),
    Sketcher.Constraint("Diameter", 0, Q("0.5 in")),
    Sketcher.Constraint("DistanceY", -1, 1, 0, 3, Q("7 in")),
])
sketch4.setExpression("Constraints[1]", "Params.sketch4_diameter")
pocket3 = body.newObject("PartDesign::Pocket", "Pocket002")
pocket3.Profile = sketch4
pocket3.Type = "ThroughAll"
pocket3.Midplane = True

doc.recompute()
